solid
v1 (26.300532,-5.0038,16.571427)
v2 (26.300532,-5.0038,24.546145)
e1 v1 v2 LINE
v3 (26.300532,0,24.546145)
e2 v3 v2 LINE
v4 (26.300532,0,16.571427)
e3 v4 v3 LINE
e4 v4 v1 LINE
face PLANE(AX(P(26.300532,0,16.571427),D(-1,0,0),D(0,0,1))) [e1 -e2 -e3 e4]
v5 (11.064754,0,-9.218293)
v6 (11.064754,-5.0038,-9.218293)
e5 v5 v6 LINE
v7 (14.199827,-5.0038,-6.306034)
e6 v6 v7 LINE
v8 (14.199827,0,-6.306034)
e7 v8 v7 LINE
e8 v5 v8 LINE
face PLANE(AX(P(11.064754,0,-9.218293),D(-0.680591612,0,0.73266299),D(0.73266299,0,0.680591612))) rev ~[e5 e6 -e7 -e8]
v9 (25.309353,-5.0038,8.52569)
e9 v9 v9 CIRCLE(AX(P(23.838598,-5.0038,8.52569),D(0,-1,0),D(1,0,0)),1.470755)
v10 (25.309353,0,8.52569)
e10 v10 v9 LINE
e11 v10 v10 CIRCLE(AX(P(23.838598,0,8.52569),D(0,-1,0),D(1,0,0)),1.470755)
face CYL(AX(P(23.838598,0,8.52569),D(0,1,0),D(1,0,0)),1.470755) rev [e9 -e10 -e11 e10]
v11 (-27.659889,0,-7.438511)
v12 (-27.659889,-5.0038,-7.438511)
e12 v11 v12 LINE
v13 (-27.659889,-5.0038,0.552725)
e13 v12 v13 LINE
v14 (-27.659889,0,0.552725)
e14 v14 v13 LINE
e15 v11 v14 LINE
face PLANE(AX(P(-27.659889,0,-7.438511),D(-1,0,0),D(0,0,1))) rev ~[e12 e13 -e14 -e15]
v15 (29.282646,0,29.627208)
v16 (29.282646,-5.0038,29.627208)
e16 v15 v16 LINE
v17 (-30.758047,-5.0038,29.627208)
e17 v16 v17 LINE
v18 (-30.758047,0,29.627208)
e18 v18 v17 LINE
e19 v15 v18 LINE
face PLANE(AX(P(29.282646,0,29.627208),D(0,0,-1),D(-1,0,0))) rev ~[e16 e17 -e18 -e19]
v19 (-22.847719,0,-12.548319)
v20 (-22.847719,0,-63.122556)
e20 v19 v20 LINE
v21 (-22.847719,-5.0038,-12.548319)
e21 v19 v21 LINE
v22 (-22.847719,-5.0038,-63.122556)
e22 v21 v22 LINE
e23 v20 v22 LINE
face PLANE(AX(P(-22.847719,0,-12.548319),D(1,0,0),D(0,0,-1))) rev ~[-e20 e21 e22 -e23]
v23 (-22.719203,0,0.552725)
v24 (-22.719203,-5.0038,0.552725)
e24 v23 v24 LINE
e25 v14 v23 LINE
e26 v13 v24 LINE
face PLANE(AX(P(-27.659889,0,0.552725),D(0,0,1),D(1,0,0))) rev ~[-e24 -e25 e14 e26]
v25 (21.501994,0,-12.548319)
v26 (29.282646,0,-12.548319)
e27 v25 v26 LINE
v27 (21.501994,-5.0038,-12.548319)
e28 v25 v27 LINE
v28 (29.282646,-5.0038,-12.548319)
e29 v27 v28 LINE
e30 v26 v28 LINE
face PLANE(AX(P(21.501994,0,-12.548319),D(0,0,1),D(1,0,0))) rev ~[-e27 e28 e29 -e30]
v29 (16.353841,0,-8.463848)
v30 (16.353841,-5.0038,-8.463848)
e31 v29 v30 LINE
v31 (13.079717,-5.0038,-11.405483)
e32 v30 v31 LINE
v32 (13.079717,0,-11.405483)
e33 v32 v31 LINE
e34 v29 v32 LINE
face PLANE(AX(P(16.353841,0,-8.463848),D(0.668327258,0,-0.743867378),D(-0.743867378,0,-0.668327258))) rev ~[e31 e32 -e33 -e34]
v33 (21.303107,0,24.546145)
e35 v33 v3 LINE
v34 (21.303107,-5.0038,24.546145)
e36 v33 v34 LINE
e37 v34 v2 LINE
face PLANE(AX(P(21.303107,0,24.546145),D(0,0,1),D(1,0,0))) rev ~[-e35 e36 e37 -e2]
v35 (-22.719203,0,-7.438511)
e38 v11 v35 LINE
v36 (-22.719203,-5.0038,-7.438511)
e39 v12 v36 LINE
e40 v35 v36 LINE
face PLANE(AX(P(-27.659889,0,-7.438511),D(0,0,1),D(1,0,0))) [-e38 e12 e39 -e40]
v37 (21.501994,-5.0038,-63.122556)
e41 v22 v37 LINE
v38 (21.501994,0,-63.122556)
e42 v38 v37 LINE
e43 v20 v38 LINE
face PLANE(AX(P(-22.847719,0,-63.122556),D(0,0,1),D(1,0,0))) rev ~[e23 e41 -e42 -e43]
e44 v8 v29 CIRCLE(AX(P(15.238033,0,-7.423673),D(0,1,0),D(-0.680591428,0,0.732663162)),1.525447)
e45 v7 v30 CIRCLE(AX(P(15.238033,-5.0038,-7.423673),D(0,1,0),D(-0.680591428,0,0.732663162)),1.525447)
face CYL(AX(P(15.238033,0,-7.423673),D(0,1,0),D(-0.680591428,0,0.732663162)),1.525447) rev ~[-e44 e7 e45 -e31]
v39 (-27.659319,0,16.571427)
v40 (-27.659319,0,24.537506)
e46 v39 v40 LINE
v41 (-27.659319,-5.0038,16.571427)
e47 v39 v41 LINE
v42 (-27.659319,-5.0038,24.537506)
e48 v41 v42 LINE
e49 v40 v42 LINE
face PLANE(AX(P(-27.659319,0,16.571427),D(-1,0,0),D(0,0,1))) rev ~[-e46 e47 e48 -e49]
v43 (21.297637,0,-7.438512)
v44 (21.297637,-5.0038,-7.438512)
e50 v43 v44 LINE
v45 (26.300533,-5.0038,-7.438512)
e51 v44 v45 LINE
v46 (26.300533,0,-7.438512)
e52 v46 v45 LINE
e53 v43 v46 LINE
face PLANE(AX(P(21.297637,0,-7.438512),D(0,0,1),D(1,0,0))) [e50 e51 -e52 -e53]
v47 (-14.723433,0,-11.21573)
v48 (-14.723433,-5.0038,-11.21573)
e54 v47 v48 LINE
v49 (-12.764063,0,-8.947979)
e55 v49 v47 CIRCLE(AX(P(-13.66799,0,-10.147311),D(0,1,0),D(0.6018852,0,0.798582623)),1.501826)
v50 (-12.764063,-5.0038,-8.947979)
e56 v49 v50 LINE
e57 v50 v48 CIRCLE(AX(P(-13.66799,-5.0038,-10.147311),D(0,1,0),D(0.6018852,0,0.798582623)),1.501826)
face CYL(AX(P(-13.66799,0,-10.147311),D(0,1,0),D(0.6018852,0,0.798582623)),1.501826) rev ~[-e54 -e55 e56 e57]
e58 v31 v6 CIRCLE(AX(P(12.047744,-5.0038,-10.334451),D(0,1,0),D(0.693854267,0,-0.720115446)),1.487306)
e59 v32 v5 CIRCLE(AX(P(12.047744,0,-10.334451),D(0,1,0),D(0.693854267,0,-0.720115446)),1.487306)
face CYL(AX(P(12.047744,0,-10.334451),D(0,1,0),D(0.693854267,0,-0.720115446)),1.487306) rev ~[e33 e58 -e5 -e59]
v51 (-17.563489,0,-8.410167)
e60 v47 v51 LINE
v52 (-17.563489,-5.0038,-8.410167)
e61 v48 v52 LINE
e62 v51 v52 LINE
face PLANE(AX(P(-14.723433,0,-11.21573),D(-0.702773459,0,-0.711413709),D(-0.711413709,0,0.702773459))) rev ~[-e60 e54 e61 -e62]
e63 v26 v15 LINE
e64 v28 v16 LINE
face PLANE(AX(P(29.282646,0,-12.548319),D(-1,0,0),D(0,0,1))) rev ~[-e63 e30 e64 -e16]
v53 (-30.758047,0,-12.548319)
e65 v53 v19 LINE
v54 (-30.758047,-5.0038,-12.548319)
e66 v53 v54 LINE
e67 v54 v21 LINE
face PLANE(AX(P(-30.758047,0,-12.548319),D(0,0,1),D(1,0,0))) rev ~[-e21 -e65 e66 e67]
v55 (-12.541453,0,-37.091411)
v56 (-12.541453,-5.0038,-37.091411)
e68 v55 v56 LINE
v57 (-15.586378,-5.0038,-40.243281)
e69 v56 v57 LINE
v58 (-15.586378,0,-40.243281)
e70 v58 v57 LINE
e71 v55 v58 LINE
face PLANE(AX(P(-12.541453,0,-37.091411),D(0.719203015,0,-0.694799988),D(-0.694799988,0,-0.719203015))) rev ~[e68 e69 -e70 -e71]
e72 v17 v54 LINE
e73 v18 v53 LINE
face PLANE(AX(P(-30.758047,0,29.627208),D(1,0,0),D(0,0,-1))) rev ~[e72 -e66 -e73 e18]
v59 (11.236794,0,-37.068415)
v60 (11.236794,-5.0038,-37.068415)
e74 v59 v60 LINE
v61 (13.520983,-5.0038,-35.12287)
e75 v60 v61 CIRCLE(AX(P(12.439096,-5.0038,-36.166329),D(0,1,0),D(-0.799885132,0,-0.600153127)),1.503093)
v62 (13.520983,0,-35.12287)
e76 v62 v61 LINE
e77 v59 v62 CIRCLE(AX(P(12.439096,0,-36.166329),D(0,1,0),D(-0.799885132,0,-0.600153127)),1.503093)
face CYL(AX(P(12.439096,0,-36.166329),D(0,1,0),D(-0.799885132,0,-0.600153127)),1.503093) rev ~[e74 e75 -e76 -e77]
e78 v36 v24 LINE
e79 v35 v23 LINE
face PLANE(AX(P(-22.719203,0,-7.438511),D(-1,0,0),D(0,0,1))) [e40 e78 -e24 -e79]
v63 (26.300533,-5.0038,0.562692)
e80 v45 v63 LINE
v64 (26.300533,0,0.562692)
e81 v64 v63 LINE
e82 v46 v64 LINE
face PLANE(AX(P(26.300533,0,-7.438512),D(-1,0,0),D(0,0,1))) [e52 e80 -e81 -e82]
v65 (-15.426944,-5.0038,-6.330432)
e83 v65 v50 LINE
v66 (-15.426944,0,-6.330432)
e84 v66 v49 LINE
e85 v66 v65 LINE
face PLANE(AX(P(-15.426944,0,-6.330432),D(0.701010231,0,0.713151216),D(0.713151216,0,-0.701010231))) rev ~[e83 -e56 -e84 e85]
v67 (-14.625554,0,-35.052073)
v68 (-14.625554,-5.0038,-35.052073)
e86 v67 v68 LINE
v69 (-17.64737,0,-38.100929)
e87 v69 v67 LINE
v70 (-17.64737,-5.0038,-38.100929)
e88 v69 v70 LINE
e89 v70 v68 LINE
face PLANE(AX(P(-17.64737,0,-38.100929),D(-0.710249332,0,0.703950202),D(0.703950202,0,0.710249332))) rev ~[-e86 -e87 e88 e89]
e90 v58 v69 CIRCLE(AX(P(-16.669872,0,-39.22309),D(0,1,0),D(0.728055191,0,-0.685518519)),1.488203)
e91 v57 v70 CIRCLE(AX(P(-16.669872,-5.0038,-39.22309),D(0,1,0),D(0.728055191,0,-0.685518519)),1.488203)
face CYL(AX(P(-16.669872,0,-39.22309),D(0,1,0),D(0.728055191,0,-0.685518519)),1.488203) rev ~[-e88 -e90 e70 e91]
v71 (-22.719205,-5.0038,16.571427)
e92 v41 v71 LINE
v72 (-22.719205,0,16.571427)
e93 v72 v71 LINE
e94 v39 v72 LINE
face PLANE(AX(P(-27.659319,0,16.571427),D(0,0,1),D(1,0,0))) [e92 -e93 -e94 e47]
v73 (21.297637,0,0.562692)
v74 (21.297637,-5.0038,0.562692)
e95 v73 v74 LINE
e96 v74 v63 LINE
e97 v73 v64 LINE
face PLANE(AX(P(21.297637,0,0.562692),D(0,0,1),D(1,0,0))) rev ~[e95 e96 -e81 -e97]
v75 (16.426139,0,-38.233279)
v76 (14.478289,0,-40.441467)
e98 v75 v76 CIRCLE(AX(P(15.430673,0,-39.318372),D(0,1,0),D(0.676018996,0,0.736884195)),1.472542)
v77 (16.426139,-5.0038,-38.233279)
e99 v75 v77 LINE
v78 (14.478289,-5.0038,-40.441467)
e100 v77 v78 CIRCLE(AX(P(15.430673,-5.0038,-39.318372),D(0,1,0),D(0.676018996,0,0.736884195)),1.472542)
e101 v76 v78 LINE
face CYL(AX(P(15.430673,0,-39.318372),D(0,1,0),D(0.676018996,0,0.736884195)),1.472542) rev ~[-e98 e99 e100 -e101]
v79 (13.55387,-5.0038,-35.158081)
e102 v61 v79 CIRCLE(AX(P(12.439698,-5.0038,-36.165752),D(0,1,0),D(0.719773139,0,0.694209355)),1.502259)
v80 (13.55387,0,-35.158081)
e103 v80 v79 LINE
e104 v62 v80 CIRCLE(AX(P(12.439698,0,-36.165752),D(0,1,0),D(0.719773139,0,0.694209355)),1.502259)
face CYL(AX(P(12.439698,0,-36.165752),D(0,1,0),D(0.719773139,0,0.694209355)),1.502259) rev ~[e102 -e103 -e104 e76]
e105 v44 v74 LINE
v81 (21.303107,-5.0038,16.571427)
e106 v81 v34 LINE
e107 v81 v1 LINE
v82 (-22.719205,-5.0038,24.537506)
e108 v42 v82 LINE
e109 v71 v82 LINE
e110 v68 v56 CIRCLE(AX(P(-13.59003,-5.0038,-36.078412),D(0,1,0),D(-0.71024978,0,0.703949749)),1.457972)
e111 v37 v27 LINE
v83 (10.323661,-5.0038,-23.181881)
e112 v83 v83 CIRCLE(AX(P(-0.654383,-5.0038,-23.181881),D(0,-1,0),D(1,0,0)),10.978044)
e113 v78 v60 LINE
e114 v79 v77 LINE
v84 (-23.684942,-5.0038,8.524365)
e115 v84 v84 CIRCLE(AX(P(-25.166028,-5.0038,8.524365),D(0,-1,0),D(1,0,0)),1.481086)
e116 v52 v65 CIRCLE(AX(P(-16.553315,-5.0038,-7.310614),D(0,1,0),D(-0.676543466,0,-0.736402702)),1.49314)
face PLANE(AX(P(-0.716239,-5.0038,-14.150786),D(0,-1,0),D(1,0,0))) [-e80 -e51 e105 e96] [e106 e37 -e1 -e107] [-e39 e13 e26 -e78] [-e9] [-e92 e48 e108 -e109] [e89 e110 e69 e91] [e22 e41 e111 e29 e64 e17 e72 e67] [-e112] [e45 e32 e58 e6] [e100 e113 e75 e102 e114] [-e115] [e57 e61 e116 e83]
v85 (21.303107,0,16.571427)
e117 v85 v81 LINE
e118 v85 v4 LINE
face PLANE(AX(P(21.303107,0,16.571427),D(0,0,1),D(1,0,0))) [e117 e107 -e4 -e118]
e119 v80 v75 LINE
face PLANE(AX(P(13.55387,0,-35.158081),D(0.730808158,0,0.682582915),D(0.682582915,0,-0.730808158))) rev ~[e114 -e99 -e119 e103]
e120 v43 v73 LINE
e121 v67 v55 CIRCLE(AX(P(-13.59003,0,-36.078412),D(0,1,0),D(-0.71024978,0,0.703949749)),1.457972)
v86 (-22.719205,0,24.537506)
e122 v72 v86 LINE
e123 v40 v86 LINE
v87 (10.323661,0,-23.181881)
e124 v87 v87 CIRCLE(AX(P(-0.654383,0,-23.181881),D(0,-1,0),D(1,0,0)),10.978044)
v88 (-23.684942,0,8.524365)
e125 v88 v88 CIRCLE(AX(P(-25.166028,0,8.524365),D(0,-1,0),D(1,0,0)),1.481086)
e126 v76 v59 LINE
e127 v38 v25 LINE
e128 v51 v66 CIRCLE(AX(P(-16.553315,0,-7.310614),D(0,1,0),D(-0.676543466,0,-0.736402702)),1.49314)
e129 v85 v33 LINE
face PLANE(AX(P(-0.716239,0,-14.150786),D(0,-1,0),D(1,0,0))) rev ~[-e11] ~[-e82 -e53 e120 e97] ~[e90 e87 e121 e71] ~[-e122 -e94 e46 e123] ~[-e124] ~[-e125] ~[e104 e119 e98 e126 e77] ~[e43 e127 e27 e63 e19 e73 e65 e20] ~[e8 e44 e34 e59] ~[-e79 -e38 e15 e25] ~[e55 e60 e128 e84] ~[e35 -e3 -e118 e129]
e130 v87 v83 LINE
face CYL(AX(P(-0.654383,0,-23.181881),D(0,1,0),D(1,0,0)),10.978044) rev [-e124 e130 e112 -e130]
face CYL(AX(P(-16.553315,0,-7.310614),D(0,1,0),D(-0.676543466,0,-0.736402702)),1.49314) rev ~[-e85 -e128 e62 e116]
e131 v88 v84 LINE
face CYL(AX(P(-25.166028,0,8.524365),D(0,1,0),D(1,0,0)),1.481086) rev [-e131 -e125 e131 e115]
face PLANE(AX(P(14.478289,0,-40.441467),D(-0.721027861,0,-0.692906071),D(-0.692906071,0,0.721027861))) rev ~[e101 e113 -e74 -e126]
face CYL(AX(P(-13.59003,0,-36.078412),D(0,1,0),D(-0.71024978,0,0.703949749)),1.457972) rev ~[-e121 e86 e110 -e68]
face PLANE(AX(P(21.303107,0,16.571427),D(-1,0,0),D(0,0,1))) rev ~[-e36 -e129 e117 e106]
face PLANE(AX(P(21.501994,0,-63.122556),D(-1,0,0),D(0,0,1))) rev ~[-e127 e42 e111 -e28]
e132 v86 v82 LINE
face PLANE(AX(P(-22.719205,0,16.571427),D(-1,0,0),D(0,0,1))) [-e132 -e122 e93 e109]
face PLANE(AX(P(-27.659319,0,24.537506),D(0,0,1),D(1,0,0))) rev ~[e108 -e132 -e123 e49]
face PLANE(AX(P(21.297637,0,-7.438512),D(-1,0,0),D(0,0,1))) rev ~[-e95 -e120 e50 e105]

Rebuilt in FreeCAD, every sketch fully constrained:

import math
import FreeCAD as App
import Part
import Sketcher
from FreeCAD import Vector
Q = App.Units.Quantity


def add_polygon(sketch, points):
    """Adds a closed chain of lines whose ends are joined by coincident constraints."""
    first, n = sketch.GeometryCount, len(points)
    for a, b in zip(points, points[1:] + points[:1]):
        sketch.addGeometry(Part.LineSegment(App.Vector(*a, 0), App.Vector(*b, 0)), False)
    for i in range(n):
        sketch.addConstraint(Sketcher.Constraint("Coincident", first + i, 2, first + (i + 1) % n, 1))

doc = App.newDocument("Part")
body = doc.addObject("PartDesign::Body", "Body")

# Sketch on XZ plane
sketch1 = doc.addObject("Sketcher::SketchObject", "Sketch")
body.addObject(sketch1)
sketch1.AttachmentSupport = (doc.XZ_Plane, [""])
sketch1.MapMode = "FlatFace"
add_polygon(sketch1, [(29.282646, 29.627208), (-30.758047, 29.627208), (-30.758047, -12.548319), (-22.847719, -12.548319), (-22.847719, -63.122556), (21.501994, -63.122556), (21.501994, -12.548319), (29.282646, -12.548319)])  # lines 0-7
sketch1.addGeometry(Part.LineSegment(Vector(-12.541453, -37.091411, 0), Vector(-15.586378, -40.243281, 0)), False)  # 8
sketch1.addGeometry(Part.ArcOfCircle(Part.Circle(Vector(-16.669872, -39.22309, 0), Vector(0, 0, 1), 1.488203), math.radians(131.05864), math.radians(316.723601)), False)  # 9
sketch1.addGeometry(Part.LineSegment(Vector(-17.64737, -38.100929, 0), Vector(-14.625554, -35.052073, 0)), False)  # 10
sketch1.addGeometry(Part.ArcOfCircle(Part.Circle(Vector(-13.59003, -36.078412, 0), Vector(0, 0, 1), 1.457972), math.radians(-44.011314), math.radians(135.255242)), False)  # 11
sketch1.addGeometry(Part.LineSegment(Vector(-14.723433, -11.21573, 0), Vector(-17.563489, -8.410167, 0)), False)  # 12
sketch1.addGeometry(Part.ArcOfCircle(Part.Circle(Vector(-16.553315, -7.310614, 0), Vector(0, 0, 1), 1.49314), math.radians(41.030215), math.radians(227.425876)), False)  # 13
sketch1.addGeometry(Part.LineSegment(Vector(-15.426944, -6.330432, 0), Vector(-12.764063, -8.947979, 0)), False)  # 14
sketch1.addGeometry(Part.ArcOfCircle(Part.Circle(Vector(-13.66799, -10.147311, 0), Vector(0, 0, 1), 1.501826), math.radians(-134.649955), math.radians(52.994965)), False)  # 15
sketch1.addGeometry(Part.LineSegment(Vector(13.55387, -35.158081, 0), Vector(16.426139, -38.233279, 0)), False)  # 16
sketch1.addGeometry(Part.ArcOfCircle(Part.Circle(Vector(15.430673, -39.318372, 0), Vector(0, 0, 1), 1.472542), math.radians(-130.297916), math.radians(47.466669)), False)  # 17
sketch1.addGeometry(Part.LineSegment(Vector(14.478289, -40.441467, 0), Vector(11.236794, -37.068415, 0)), False)  # 18
sketch1.addGeometry(Part.ArcOfCircle(Part.Circle(Vector(12.439096, -36.166329, 0), Vector(0, 0, 1), 1.503093), math.radians(43.964151), math.radians(216.880865)), False)  # 19
sketch1.addGeometry(Part.ArcOfCircle(Part.Circle(Vector(12.439698, -36.165752, 0), Vector(0, 0, 1), 1.502259), math.radians(42.126572), math.radians(43.964246)), False)  # 20
sketch1.addGeometry(Part.Circle(Vector(-0.654383, -23.181881, 0), Vector(0, 0, 1), 10.978044), False)  # 21
sketch1.addGeometry(Part.LineSegment(Vector(11.064754, -9.218293, 0), Vector(14.199827, -6.306034, 0)), False)  # 22
sketch1.addGeometry(Part.ArcOfCircle(Part.Circle(Vector(15.238033, -7.423673, 0), Vector(0, 0, 1), 1.525447), math.radians(-42.990866), math.radians(132.889877)), False)  # 23
sketch1.addGeometry(Part.LineSegment(Vector(16.353841, -8.463848, 0), Vector(13.079717, -11.405483, 0)), False)  # 24
sketch1.addGeometry(Part.ArcOfCircle(Part.Circle(Vector(12.047744, -10.334451, 0), Vector(0, 0, 1), 1.487306), math.radians(131.370057), math.radians(313.935987)), False)  # 25
add_polygon(sketch1, [(-22.719203, -7.438511), (-27.659889, -7.438511), (-27.659889, 0.552725), (-22.719203, 0.552725)])  # lines 26-29
sketch1.addGeometry(Part.Circle(Vector(-25.166028, 8.524365, 0), Vector(0, 0, 1), 1.481086), False)  # 30
add_polygon(sketch1, [(-22.719205, 16.571427), (-27.659319, 16.571427), (-27.659319, 24.537506), (-22.719205, 24.537506)])  # lines 31-34
add_polygon(sketch1, [(26.300533, -7.438512), (21.297637, -7.438512), (21.297637, 0.562692), (26.300533, 0.562692)])  # lines 35-38
sketch1.addGeometry(Part.Circle(Vector(23.838598, 8.52569, 0), Vector(0, 0, 1), 1.470755), False)  # 39
add_polygon(sketch1, [(26.300532, 16.571427), (21.303107, 16.571427), (21.303107, 24.546145), (26.300532, 24.546145)])  # lines 40-43
sketch1.addConstraint([
    Sketcher.Constraint("Coincident", 8, 2, 9, 2),
    Sketcher.Constraint("Coincident", 9, 1, 10, 1),
    Sketcher.Constraint("Coincident", 10, 2, 11, 2),
    Sketcher.Constraint("Coincident", 11, 1, 8, 1),
    Sketcher.Constraint("Coincident", 12, 2, 13, 2),
    Sketcher.Constraint("Coincident", 13, 1, 14, 1),
    Sketcher.Constraint("Coincident", 14, 2, 15, 2),
    Sketcher.Constraint("Coincident", 15, 1, 12, 1),
    Sketcher.Constraint("Coincident", 16, 2, 17, 2),
    Sketcher.Constraint("Coincident", 17, 1, 18, 1),
    Sketcher.Constraint("Coincident", 18, 2, 19, 2),
    Sketcher.Constraint("Coincident", 19, 1, 20, 2),
    Sketcher.Constraint("Coincident", 20, 1, 16, 1),
    Sketcher.Constraint("Coincident", 22, 2, 23, 2),
    Sketcher.Constraint("Coincident", 23, 1, 24, 1),
    Sketcher.Constraint("Coincident", 24, 2, 25, 2),
    Sketcher.Constraint("Coincident", 25, 1, 22, 1),
    Sketcher.Constraint("Horizontal", 0),
    Sketcher.Constraint("Vertical", 1),
    Sketcher.Constraint("Horizontal", 2),
    Sketcher.Constraint("Vertical", 3),
    Sketcher.Constraint("Horizontal", 4),
    Sketcher.Constraint("Vertical", 5),
    Sketcher.Constraint("Horizontal", 6),
    Sketcher.Constraint("Vertical", 7),
    Sketcher.Constraint("Horizontal", 26),
    Sketcher.Constraint("Vertical", 27),
    Sketcher.Constraint("Horizontal", 28),
    Sketcher.Constraint("Vertical", 29),
    Sketcher.Constraint("Horizontal", 31),
    Sketcher.Constraint("Vertical", 32),
    Sketcher.Constraint("Horizontal", 33),
    Sketcher.Constraint("Vertical", 34),
    Sketcher.Constraint("Horizontal", 35),
    Sketcher.Constraint("Vertical", 36),
    Sketcher.Constraint("Horizontal", 37),
    Sketcher.Constraint("Vertical", 38),
    Sketcher.Constraint("Horizontal", 40),
    Sketcher.Constraint("Vertical", 41),
    Sketcher.Constraint("Horizontal", 42),
    Sketcher.Constraint("Vertical", 43),
    Sketcher.Constraint("Diameter", 21, 21.956088),
    Sketcher.Constraint("Diameter", 30, 2.962172),
    Sketcher.Constraint("Diameter", 39, 2.94151),
    Sketcher.Constraint("Radius", 11, 1.457972),
    Sketcher.Constraint("Radius", 13, 1.49314),
    Sketcher.Constraint("Radius", 17, 1.472542),
    Sketcher.Constraint("Radius", 20, 1.502259),
    Sketcher.Constraint("Radius", 9, 1.488203),
    Sketcher.Constraint("Radius", 15, 1.501826),
    Sketcher.Constraint("Radius", 19, 1.503093),
    Sketcher.Constraint("Radius", 23, 1.525447),
    Sketcher.Constraint("Radius", 25, 1.487306),
    Sketcher.Constraint("DistanceY", 32, 1, 32, 2, 7.966079),
    Sketcher.Constraint("DistanceX", -1, 1, 39, 3, 23.838598),
    Sketcher.Constraint("DistanceY", 11, 3, 15, 3, 25.931101),
    Sketcher.Constraint("DistanceY", 20, 3, 25, 3, 25.831301),
    Sketcher.Constraint("DistanceY", 15, 3, 39, 3, 18.673001),
    Sketcher.Constraint("DistanceX", 19, 3, 4, 2, 9.062898),
    Sketcher.Constraint("DistanceY", 8, 2, 21, 3, 17.0614),
    Sketcher.Constraint("DistanceX", 9, 1, 9, 3, 0.977498),
    Sketcher.Constraint("DistanceY", 11, 1, 11, 3, 1.012999),
    Sketcher.Constraint("DistanceX", 10, 2, 11, 1, 2.084101),
    Sketcher.Constraint("DistanceX", 12, 2, 15, 3, 3.895499),
    Sketcher.Constraint("DistanceY", 15, 1, 13, 1, 4.885298),
    Sketcher.Constraint("DistanceY", 16, 2, 21, 3, 15.051398),
    Sketcher.Constraint("DistanceX", 18, 2, 19, 3, 1.202302),
    Sketcher.Constraint("DistanceY", 17, 3, 19, 1, 4.195502),
    Sketcher.Constraint("DistanceX", 26, 2, 12, 2, 10.0964),
    Sketcher.Constraint("DistanceY", 27, 2, 31, 2, 16.018702),
    Sketcher.Constraint("DistanceY", 32, 2, 0, 2, 5.089702),
    Sketcher.Constraint("DistanceY", 36, 2, 39, 3, 7.962998),
    Sketcher.Constraint("Distance", 8, 4.382448),
    Sketcher.Constraint("Distance", 12, 3.99213),
    Sketcher.Constraint("Distance", 16, 4.207942),
    Sketcher.Constraint("Distance", 22, 4.279011),
    Sketcher.Constraint("Distance", 24, 4.401489),
    Sketcher.Constraint("DistanceX", 0, 2, 0, 1, 60.040693),
    Sketcher.Constraint("DistanceX", 2, 1, 2, 2, 7.910328),
    Sketcher.Constraint("DistanceX", 4, 1, 4, 2, 44.349713),
    Sketcher.Constraint("DistanceX", 26, 2, 26, 1, 4.940685),
    Sketcher.Constraint("DistanceX", 31, 2, 31, 1, 4.940115),
    Sketcher.Constraint("DistanceX", 35, 2, 35, 1, 5.002896),
    Sketcher.Constraint("DistanceX", 40, 2, 40, 1, 4.997425),
    Sketcher.Constraint("DistanceY", 1, 2, 1, 1, 42.175527),
    Sketcher.Constraint("DistanceY", 3, 2, 3, 1, 50.574237),
    Sketcher.Constraint("DistanceY", 5, 1, 5, 2, 50.574237),
    Sketcher.Constraint("DistanceY", 27, 1, 27, 2, 7.991237),
    Sketcher.Constraint("DistanceY", 36, 1, 36, 2, 8.001204),
    Sketcher.Constraint("DistanceY", 41, 1, 41, 2, 7.974718),
    Sketcher.Constraint("DistanceX", 9, 3, -1, 1, 16.669872),
    Sketcher.Constraint("DistanceY", 9, 3, -1, 1, 39.22309),
    Sketcher.Constraint("DistanceX", 11, 3, -1, 1, 13.59003),
    Sketcher.Constraint("DistanceY", 11, 3, -1, 1, 36.078412),
    Sketcher.Constraint("DistanceX", 15, 3, -1, 1, 13.66799),
    Sketcher.Constraint("DistanceY", 17, 3, -1, 1, 39.318372),
    Sketcher.Constraint("DistanceY", 19, 3, -1, 1, 36.166329),
    Sketcher.Constraint("DistanceY", 25, 3, -1, 1, 10.334451),
    Sketcher.Constraint("DistanceX", 30, 3, -1, 1, 25.166028),
    Sketcher.Constraint("DistanceY", 1, 2, -1, 1, 12.548319),
    Sketcher.Constraint("DistanceX", 2, 2, -1, 1, 22.847719),
    Sketcher.Constraint("DistanceY", 14, 2, -1, 1, 8.947979),
    Sketcher.Constraint("DistanceY", 15, 1, -1, 1, 11.21573),
    Sketcher.Constraint("DistanceX", -1, 1, 16, 2, 16.426139),
    Sketcher.Constraint("DistanceX", -1, 1, 17, 1, 14.478289),
    Sketcher.Constraint("DistanceX", -1, 1, 23, 1, 16.353841),
    Sketcher.Constraint("DistanceX", 31, 2, -1, 1, 27.659319),
    Sketcher.Constraint("DistanceX", 13, 3, 19, 3, 28.99241),
    Sketcher.Constraint("DistanceX", 21, 3, 19, 3, 13.093479),
    Sketcher.Constraint("DistanceY", 20, 3, 23, 3, 28.742079),
    Sketcher.Constraint("DistanceX", 13, 3, 23, 3, 31.791348),
    Sketcher.Constraint("DistanceX", 25, 3, 23, 3, 3.19029),
    Sketcher.Constraint("DistanceY", 13, 3, 30, 3, 15.834979),
    Sketcher.Constraint("DistanceY", 23, 3, 22, 2, 1.117639),
    Sketcher.Constraint("DistanceX", 22, 2, 35, 2, 7.09781),
    Sketcher.Constraint("DistanceX", 40, 2, 39, 3, 2.535491),
    Sketcher.Constraint("DistanceY", 40, 2, 7, 2, 13.055781),
])
pad1 = doc.addObject("PartDesign::Pad", "Pad")
body.addObject(pad1)
pad1.Profile = sketch1
pad1.Length = Q("0.197 in")

doc.recompute()
